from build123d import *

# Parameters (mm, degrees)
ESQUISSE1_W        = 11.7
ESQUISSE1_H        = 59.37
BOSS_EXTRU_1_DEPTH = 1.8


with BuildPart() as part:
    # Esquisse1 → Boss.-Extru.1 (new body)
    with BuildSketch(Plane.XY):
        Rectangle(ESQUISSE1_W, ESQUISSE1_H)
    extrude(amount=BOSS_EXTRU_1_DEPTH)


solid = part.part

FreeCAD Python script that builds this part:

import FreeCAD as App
import Part
import Sketcher

V = App.Vector
Q = App.Units.Quantity

doc = App.newDocument("Part")
body = doc.addObject("PartDesign::Body", "Body")

# Sketch on XY plane
sketch1 = doc.addObject("Sketcher::SketchObject", "Sketch")
body.addObject(sketch1)
sketch1.AttachmentSupport = (doc.XY_Plane, [""])
sketch1.MapMode = "FlatFace"
sketch1.addGeometry(Part.LineSegment(V(-6, 30, 0), V(-6, -30, 0)), False)
sketch1.addGeometry(Part.LineSegment(V(-6, -30, 0), V(6, -30, 0)), False)
sketch1.addGeometry(Part.LineSegment(V(6, -30, 0), V(6, 30, 0)), False)
sketch1.addGeometry(Part.LineSegment(V(6, 30, 0), V(-6, 30, 0)), False)
sketch1.addConstraint(Sketcher.Constraint("Coincident", 0, 2, 1, 1))
sketch1.addConstraint(Sketcher.Constraint("Coincident", 1, 2, 2, 1))
sketch1.addConstraint(Sketcher.Constraint("Coincident", 2, 2, 3, 1))
sketch1.addConstraint(Sketcher.Constraint("Coincident", 3, 2, 0, 1))
sketch1.addConstraint(Sketcher.Constraint("Vertical", 0))
sketch1.addConstraint(Sketcher.Constraint("Horizontal", 1))
sketch1.addConstraint(Sketcher.Constraint("Vertical", 2))
sketch1.addConstraint(Sketcher.Constraint("Horizontal", 3))
sketch1.addConstraint(Sketcher.Constraint("Symmetric", 0, 2, 2, 2, -1, 1))
sketch1.addConstraint(Sketcher.Constraint("DistanceX", 1, 1, 1, 2, Q("11.7 mm")))
sketch1.addConstraint(Sketcher.Constraint("DistanceY", 0, 2, 0, 1, Q("59.37 mm")))
pad1 = doc.addObject("PartDesign::Pad", "Pad")
body.addObject(pad1)
pad1.Profile = sketch1
pad1.Length = 1.8

doc.recompute()
